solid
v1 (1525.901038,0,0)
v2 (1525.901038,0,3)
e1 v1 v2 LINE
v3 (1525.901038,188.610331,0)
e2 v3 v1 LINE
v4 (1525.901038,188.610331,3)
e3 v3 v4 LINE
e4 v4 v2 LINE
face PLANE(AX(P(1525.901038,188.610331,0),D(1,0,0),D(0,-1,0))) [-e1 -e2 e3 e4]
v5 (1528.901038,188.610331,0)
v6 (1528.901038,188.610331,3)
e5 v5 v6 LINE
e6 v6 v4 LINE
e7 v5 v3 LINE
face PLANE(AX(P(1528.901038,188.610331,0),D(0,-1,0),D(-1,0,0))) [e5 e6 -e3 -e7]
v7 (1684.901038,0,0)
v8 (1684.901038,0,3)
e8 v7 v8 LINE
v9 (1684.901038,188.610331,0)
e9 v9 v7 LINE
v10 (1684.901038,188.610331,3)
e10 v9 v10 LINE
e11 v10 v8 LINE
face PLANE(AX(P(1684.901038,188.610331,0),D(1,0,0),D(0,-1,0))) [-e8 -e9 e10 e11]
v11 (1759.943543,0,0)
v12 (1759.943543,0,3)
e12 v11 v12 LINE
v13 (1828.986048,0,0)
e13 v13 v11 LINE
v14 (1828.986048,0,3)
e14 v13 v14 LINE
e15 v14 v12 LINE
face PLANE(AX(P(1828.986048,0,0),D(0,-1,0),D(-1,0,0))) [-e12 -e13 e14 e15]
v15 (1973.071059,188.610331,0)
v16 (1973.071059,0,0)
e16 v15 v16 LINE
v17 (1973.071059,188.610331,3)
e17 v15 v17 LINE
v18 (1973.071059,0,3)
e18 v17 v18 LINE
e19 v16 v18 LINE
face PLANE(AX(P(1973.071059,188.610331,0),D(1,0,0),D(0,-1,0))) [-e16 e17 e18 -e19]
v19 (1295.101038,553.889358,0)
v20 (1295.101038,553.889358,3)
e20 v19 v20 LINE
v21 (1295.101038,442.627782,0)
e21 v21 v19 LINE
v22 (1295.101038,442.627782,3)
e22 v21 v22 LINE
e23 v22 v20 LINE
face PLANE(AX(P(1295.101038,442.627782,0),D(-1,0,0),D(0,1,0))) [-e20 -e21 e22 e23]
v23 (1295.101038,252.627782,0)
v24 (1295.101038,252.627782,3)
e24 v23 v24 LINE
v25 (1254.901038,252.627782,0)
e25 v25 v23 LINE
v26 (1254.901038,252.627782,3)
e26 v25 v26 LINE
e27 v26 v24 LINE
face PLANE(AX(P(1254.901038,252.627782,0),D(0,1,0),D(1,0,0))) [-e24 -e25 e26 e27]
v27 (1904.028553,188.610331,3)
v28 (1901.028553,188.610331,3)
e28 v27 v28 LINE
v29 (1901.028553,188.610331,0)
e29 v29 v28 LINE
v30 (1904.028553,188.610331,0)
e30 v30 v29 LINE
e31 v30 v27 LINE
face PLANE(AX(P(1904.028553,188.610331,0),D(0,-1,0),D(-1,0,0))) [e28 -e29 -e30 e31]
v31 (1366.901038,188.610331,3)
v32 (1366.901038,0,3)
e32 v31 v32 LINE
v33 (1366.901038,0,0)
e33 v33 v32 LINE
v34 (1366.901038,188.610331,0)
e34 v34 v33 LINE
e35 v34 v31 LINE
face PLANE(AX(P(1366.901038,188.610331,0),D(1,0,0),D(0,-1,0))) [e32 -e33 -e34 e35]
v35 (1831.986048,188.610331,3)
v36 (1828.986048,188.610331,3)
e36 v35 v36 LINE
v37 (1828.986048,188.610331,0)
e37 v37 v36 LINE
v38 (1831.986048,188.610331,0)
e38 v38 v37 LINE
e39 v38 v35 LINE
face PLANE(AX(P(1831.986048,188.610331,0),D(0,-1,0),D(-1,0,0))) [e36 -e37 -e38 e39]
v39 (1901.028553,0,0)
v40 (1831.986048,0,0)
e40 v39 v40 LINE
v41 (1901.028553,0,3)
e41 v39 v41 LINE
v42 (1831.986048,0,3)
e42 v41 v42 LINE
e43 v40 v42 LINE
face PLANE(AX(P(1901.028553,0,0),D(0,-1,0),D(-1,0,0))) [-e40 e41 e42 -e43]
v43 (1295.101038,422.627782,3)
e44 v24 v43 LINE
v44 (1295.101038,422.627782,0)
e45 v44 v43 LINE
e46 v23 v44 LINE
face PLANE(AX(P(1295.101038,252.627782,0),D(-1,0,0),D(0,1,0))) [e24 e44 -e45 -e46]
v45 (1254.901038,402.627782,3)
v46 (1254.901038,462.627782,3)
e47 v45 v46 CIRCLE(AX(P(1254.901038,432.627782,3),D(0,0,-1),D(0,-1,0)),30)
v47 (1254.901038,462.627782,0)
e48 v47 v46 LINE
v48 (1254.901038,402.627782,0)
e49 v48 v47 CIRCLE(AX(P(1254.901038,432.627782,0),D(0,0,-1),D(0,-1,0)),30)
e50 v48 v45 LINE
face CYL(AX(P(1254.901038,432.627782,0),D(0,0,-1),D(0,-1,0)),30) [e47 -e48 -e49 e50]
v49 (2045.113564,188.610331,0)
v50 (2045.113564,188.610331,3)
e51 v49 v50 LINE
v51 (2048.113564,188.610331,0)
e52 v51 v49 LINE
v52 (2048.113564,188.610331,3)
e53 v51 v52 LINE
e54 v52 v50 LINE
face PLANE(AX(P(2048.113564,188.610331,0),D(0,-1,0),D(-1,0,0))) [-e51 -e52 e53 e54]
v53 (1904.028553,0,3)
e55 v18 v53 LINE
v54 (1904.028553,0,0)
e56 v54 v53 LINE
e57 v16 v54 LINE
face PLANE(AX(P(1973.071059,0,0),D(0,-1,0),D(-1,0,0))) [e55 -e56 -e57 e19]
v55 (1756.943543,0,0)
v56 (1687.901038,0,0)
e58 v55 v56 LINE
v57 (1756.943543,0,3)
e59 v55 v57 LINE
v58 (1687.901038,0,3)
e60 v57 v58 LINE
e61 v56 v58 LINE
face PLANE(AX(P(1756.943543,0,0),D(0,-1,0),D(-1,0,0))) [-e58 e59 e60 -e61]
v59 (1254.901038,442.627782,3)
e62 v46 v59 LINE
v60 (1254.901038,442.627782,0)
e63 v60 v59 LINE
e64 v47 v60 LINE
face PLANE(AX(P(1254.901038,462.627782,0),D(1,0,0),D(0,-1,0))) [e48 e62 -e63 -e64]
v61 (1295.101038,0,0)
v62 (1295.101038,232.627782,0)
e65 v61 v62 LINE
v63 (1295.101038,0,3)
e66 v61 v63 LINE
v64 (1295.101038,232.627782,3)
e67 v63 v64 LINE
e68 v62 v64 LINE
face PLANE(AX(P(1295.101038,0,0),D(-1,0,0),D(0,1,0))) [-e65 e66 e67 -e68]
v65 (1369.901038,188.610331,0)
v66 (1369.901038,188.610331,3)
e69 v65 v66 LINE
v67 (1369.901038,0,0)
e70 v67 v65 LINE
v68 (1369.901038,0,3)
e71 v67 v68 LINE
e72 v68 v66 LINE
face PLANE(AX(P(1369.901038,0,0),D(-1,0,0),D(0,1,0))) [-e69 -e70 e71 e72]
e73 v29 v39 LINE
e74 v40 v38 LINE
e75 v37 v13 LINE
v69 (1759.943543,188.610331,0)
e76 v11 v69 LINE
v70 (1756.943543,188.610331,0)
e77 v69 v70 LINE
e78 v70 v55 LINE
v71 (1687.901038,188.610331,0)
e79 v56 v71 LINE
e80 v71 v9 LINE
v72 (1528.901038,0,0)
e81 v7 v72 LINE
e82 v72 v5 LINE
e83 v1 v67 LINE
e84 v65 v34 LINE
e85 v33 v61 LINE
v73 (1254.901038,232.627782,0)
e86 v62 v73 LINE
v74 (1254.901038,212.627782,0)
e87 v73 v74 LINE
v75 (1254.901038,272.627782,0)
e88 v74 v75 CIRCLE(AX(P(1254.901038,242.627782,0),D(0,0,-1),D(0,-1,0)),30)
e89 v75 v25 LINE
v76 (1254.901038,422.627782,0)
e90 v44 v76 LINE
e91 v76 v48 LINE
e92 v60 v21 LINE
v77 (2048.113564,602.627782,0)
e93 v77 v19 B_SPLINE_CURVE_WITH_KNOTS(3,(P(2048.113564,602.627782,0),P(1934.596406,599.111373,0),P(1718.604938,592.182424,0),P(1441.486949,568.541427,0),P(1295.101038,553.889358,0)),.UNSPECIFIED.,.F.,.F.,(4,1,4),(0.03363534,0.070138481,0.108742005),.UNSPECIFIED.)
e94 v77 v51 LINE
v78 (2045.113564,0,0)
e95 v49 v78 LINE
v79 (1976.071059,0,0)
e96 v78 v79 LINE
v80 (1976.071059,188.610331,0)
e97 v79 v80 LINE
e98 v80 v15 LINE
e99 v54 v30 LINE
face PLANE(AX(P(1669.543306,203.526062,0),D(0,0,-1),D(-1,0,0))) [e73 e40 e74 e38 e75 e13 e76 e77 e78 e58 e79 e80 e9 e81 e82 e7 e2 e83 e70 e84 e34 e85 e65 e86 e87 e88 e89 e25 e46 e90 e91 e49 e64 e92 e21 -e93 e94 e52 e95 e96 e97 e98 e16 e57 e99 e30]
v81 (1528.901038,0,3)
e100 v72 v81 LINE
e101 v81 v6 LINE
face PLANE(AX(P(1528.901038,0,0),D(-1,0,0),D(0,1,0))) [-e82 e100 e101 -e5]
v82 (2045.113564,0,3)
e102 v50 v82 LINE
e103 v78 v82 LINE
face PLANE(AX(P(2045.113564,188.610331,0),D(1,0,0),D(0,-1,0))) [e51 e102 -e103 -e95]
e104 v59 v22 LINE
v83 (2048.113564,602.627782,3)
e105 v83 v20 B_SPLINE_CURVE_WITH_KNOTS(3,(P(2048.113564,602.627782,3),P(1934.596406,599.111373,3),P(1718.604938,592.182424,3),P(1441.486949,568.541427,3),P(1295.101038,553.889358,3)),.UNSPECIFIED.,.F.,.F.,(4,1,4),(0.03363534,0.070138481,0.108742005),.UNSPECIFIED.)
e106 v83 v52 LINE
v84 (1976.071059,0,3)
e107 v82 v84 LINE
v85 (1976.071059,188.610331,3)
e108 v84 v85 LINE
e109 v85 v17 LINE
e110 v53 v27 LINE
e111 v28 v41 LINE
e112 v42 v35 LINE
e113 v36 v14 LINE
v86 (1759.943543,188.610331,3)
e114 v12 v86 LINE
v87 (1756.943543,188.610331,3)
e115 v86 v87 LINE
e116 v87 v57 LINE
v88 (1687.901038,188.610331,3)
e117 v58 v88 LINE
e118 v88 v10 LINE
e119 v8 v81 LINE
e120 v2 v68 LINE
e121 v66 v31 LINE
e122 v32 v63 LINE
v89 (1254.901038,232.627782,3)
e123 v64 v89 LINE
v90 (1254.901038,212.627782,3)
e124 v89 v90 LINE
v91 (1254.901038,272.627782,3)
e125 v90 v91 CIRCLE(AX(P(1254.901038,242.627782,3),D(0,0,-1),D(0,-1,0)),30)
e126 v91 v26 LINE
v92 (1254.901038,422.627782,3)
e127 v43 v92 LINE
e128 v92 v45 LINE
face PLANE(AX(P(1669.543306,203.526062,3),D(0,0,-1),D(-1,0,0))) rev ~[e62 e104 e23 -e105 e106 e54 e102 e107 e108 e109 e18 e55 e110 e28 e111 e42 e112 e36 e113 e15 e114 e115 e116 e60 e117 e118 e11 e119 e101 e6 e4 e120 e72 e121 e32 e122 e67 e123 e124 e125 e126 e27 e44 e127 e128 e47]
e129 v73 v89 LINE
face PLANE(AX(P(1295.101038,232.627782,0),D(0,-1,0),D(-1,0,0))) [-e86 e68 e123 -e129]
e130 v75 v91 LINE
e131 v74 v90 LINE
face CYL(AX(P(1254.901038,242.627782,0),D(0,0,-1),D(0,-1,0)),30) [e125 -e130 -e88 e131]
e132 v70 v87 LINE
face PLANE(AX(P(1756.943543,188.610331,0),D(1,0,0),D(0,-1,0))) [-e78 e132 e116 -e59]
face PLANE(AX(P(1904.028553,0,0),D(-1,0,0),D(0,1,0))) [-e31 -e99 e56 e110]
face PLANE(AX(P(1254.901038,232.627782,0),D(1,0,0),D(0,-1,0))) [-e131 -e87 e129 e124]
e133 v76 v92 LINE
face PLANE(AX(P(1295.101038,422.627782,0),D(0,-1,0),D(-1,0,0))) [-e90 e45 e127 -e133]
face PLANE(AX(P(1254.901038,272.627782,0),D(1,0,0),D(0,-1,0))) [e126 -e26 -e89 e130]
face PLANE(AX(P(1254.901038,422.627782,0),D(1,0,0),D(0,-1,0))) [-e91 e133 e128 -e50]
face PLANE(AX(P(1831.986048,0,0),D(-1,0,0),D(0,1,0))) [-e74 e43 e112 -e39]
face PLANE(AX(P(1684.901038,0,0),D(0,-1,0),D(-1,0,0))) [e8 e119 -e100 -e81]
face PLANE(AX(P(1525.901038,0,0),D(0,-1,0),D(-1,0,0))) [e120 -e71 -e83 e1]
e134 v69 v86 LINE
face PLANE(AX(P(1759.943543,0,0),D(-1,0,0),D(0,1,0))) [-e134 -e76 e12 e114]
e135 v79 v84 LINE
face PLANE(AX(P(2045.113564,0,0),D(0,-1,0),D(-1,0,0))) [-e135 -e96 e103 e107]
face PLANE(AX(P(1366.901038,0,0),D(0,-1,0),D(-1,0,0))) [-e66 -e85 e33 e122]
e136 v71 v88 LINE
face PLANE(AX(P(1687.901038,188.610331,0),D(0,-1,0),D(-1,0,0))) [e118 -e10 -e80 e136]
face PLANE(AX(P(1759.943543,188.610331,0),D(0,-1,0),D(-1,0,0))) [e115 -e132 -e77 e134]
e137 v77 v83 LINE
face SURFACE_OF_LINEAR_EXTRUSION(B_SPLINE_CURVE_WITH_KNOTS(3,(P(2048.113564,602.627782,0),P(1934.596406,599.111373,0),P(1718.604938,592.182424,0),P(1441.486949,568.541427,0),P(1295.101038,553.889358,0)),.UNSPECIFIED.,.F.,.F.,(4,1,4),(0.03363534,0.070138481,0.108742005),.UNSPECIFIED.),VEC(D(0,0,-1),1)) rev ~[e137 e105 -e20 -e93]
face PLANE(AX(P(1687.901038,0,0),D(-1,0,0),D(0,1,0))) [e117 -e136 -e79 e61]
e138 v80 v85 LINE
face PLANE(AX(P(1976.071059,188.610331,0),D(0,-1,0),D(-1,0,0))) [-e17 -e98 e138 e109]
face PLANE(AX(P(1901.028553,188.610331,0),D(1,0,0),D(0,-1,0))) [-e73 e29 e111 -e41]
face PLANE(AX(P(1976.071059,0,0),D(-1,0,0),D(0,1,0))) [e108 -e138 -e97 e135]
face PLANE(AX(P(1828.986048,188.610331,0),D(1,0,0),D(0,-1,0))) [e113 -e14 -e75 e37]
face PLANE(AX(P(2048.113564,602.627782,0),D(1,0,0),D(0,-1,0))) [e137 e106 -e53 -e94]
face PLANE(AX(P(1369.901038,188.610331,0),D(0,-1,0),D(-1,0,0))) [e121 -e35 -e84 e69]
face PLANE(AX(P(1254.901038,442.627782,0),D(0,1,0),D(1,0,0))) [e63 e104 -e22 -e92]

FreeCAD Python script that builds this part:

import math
import FreeCAD as App
import Part
import Sketcher

V = App.Vector

doc = App.newDocument("Part")
body = doc.addObject("PartDesign::Body", "Body")

# Sketch on XY plane
sketch1 = body.newObject("Sketcher::SketchObject", "Sketch")
sketch1.AttachmentSupport = (doc.getObject("XY_Plane"), [""])
sketch1.MapMode = "FlatFace"
sketch1.addGeometry([
    Part.LineSegment(V(1295.101038, 232.627782, 0), V(1295.101038, 0, 0)),  # 0
    Part.LineSegment(V(1295.101038, 0, 0), V(1366.901038, 0, 0)),  # 1
    Part.LineSegment(V(1366.901038, 0, 0), V(1366.901038, 188.610331, 0)),  # 2
    Part.LineSegment(V(1366.901038, 188.610331, 0), V(1369.901038, 188.610331, 0)),  # 3
    Part.LineSegment(V(1369.901038, 188.610331, 0), V(1369.901038, 0, 0)),  # 4
    Part.LineSegment(V(1369.901038, 0, 0), V(1525.901038, 0, 0)),  # 5
    Part.LineSegment(V(1525.901038, 0, 0), V(1525.901038, 188.610331, 0)),  # 6
    Part.LineSegment(V(1525.901038, 188.610331, 0), V(1528.901038, 188.610331, 0)),  # 7
    Part.LineSegment(V(1528.901038, 188.610331, 0), V(1528.901038, 0, 0)),  # 8
    Part.LineSegment(V(1528.901038, 0, 0), V(1684.901038, 0, 0)),  # 9
    Part.LineSegment(V(1684.901038, 0, 0), V(1684.901038, 188.610331, 0)),  # 10
    Part.LineSegment(V(1684.901038, 188.610331, 0), V(1687.901038, 188.610331, 0)),  # 11
    Part.LineSegment(V(1687.901038, 188.610331, 0), V(1687.901038, 0, 0)),  # 12
    Part.LineSegment(V(1687.901038, 0, 0), V(1756.943543, 0, 0)),  # 13
    Part.LineSegment(V(1756.943543, 0, 0), V(1756.943543, 188.610331, 0)),  # 14
    Part.LineSegment(V(1756.943543, 188.610331, 0), V(1759.943543, 188.610331, 0)),  # 15
    Part.LineSegment(V(1759.943543, 188.610331, 0), V(1759.943543, 0, 0)),  # 16
    Part.LineSegment(V(1759.943543, 0, 0), V(1828.986048, 0, 0)),  # 17
    Part.LineSegment(V(1828.986048, 0, 0), V(1828.986048, 188.610331, 0)),  # 18
    Part.LineSegment(V(1828.986048, 188.610331, 0), V(1831.986048, 188.610331, 0)),  # 19
    Part.LineSegment(V(1831.986048, 188.610331, 0), V(1831.986048, 0, 0)),  # 20
    Part.LineSegment(V(1831.986048, 0, 0), V(1901.028553, 0, 0)),  # 21
    Part.LineSegment(V(1901.028553, 0, 0), V(1901.028553, 188.610331, 0)),  # 22
    Part.LineSegment(V(1901.028553, 188.610331, 0), V(1904.028553, 188.610331, 0)),  # 23
    Part.LineSegment(V(1904.028553, 188.610331, 0), V(1904.028553, 0, 0)),  # 24
    Part.LineSegment(V(1904.028553, 0, 0), V(1973.071059, 0, 0)),  # 25
    Part.LineSegment(V(1973.071059, 0, 0), V(1973.071059, 188.610331, 0)),  # 26
    Part.LineSegment(V(1973.071059, 188.610331, 0), V(1976.071059, 188.610331, 0)),  # 27
    Part.LineSegment(V(1976.071059, 188.610331, 0), V(1976.071059, 0, 0)),  # 28
    Part.LineSegment(V(1976.071059, 0, 0), V(2045.113564, 0, 0)),  # 29
    Part.LineSegment(V(2045.113564, 0, 0), V(2045.113564, 188.610331, 0)),  # 30
    Part.LineSegment(V(2045.113564, 188.610331, 0), V(2048.113564, 188.610331, 0)),  # 31
    Part.LineSegment(V(2048.113564, 188.610331, 0), V(2048.113564, 602.627782, 0)),  # 32
    Part.BSplineCurve([V(2048.113564, 602.627782, 0), V(1934.596406, 599.111373, 0), V(1718.604938, 592.182424, 0), V(1441.486949, 568.541427, 0), V(1295.101038, 553.889358, 0)], [4, 1, 4], [0.03363534, 0.070138481, 0.108742005], False, 3, [1, 1, 1, 1, 1], False),  # 33
    Part.LineSegment(V(1295.101038, 553.889358, 0), V(1295.101038, 442.627782, 0)),  # 34
    Part.LineSegment(V(1295.101038, 442.627782, 0), V(1254.901038, 442.627782, 0)),  # 35
    Part.LineSegment(V(1254.901038, 442.627782, 0), V(1254.901038, 462.627782, 0)),  # 36
    Part.ArcOfCircle(Part.Circle(V(1254.901038, 432.627782, 0), V(0, 0, 1), 30), math.radians(90), math.radians(270)),  # 37
    Part.LineSegment(V(1254.901038, 402.627782, 0), V(1254.901038, 422.627782, 0)),  # 38
    Part.LineSegment(V(1254.901038, 422.627782, 0), V(1295.101038, 422.627782, 0)),  # 39
    Part.LineSegment(V(1295.101038, 422.627782, 0), V(1295.101038, 252.627782, 0)),  # 40
    Part.LineSegment(V(1295.101038, 252.627782, 0), V(1254.901038, 252.627782, 0)),  # 41
    Part.LineSegment(V(1254.901038, 252.627782, 0), V(1254.901038, 272.627782, 0)),  # 42
    Part.ArcOfCircle(Part.Circle(V(1254.901038, 242.627782, 0), V(0, 0, 1), 30), math.radians(90), math.radians(270)),  # 43
    Part.LineSegment(V(1254.901038, 212.627782, 0), V(1254.901038, 232.627782, 0)),  # 44
    Part.LineSegment(V(1254.901038, 232.627782, 0), V(1295.101038, 232.627782, 0)),  # 45
], False)
sketch1.addConstraint([
    Sketcher.Constraint("Block", 33),
    Sketcher.Constraint("Coincident", 0, 2, 1, 1),
    Sketcher.Constraint("Coincident", 1, 2, 2, 1),
    Sketcher.Constraint("Coincident", 2, 2, 3, 1),
    Sketcher.Constraint("Coincident", 3, 2, 4, 1),
    Sketcher.Constraint("Coincident", 4, 2, 5, 1),
    Sketcher.Constraint("Coincident", 5, 2, 6, 1),
    Sketcher.Constraint("Coincident", 6, 2, 7, 1),
    Sketcher.Constraint("Coincident", 7, 2, 8, 1),
    Sketcher.Constraint("Coincident", 8, 2, 9, 1),
    Sketcher.Constraint("Coincident", 9, 2, 10, 1),
    Sketcher.Constraint("Coincident", 10, 2, 11, 1),
    Sketcher.Constraint("Coincident", 11, 2, 12, 1),
    Sketcher.Constraint("Coincident", 12, 2, 13, 1),
    Sketcher.Constraint("Coincident", 13, 2, 14, 1),
    Sketcher.Constraint("Coincident", 14, 2, 15, 1),
    Sketcher.Constraint("Coincident", 15, 2, 16, 1),
    Sketcher.Constraint("Coincident", 16, 2, 17, 1),
    Sketcher.Constraint("Coincident", 17, 2, 18, 1),
    Sketcher.Constraint("Coincident", 18, 2, 19, 1),
    Sketcher.Constraint("Coincident", 19, 2, 20, 1),
    Sketcher.Constraint("Coincident", 20, 2, 21, 1),
    Sketcher.Constraint("Coincident", 21, 2, 22, 1),
    Sketcher.Constraint("Coincident", 22, 2, 23, 1),
    Sketcher.Constraint("Coincident", 23, 2, 24, 1),
    Sketcher.Constraint("Coincident", 24, 2, 25, 1),
    Sketcher.Constraint("Coincident", 25, 2, 26, 1),
    Sketcher.Constraint("Coincident", 26, 2, 27, 1),
    Sketcher.Constraint("Coincident", 27, 2, 28, 1),
    Sketcher.Constraint("Coincident", 28, 2, 29, 1),
    Sketcher.Constraint("Coincident", 29, 2, 30, 1),
    Sketcher.Constraint("Coincident", 30, 2, 31, 1),
    Sketcher.Constraint("Coincident", 31, 2, 32, 1),
    Sketcher.Constraint("Coincident", 32, 2, 33, 1),
    Sketcher.Constraint("Coincident", 33, 2, 34, 1),
    Sketcher.Constraint("Coincident", 34, 2, 35, 1),
    Sketcher.Constraint("Coincident", 35, 2, 36, 1),
    Sketcher.Constraint("Coincident", 36, 2, 37, 1),
    Sketcher.Constraint("Coincident", 37, 2, 38, 1),
    Sketcher.Constraint("Coincident", 38, 2, 39, 1),
    Sketcher.Constraint("Coincident", 39, 2, 40, 1),
    Sketcher.Constraint("Coincident", 40, 2, 41, 1),
    Sketcher.Constraint("Coincident", 41, 2, 42, 1),
    Sketcher.Constraint("Coincident", 42, 2, 43, 1),
    Sketcher.Constraint("Coincident", 43, 2, 44, 1),
    Sketcher.Constraint("Coincident", 44, 2, 45, 1),
    Sketcher.Constraint("Coincident", 45, 2, 0, 1),
    Sketcher.Constraint("Vertical", 0),
    Sketcher.Constraint("Horizontal", 1),
    Sketcher.Constraint("Vertical", 2),
    Sketcher.Constraint("Horizontal", 3),
    Sketcher.Constraint("Vertical", 4),
    Sketcher.Constraint("Horizontal", 5),
    Sketcher.Constraint("Vertical", 6),
    Sketcher.Constraint("Horizontal", 7),
    Sketcher.Constraint("Vertical", 8),
    Sketcher.Constraint("Horizontal", 9),
    Sketcher.Constraint("Vertical", 10),
    Sketcher.Constraint("Horizontal", 11),
    Sketcher.Constraint("Vertical", 12),
    Sketcher.Constraint("Horizontal", 13),
    Sketcher.Constraint("Vertical", 14),
    Sketcher.Constraint("Horizontal", 15),
    Sketcher.Constraint("Vertical", 16),
    Sketcher.Constraint("Horizontal", 17),
    Sketcher.Constraint("Vertical", 18),
    Sketcher.Constraint("Horizontal", 19),
    Sketcher.Constraint("Vertical", 20),
    Sketcher.Constraint("Horizontal", 21),
    Sketcher.Constraint("Vertical", 22),
    Sketcher.Constraint("Horizontal", 23),
    Sketcher.Constraint("Vertical", 24),
    Sketcher.Constraint("Horizontal", 25),
    Sketcher.Constraint("Vertical", 26),
    Sketcher.Constraint("Horizontal", 27),
    Sketcher.Constraint("Vertical", 28),
    Sketcher.Constraint("Horizontal", 29),
    Sketcher.Constraint("Vertical", 30),
    Sketcher.Constraint("Horizontal", 31),
    Sketcher.Constraint("Vertical", 32),
    Sketcher.Constraint("Vertical", 34),
    Sketcher.Constraint("Horizontal", 35),
    Sketcher.Constraint("Vertical", 36),
    Sketcher.Constraint("Vertical", 38),
    Sketcher.Constraint("Horizontal", 39),
    Sketcher.Constraint("Vertical", 40),
    Sketcher.Constraint("Horizontal", 41),
    Sketcher.Constraint("Vertical", 42),
    Sketcher.Constraint("Vertical", 44),
    Sketcher.Constraint("Horizontal", 45),
    Sketcher.Constraint("Equal", 37, 43),
    Sketcher.Constraint("PointOnObject", 0, 2, -1),
    Sketcher.Constraint("PointOnObject", 4, 2, -1),
    Sketcher.Constraint("PointOnObject", 8, 2, -1),
    Sketcher.Constraint("PointOnObject", 12, 2, -1),
    Sketcher.Constraint("PointOnObject", 16, 2, -1),
    Sketcher.Constraint("PointOnObject", 20, 2, -1),
    Sketcher.Constraint("PointOnObject", 24, 2, -1),
    Sketcher.Constraint("PointOnObject", 28, 2, -1),
    Sketcher.Constraint("Horizontal", 3, 2, 6, 2),
    Sketcher.Constraint("Horizontal", 7, 2, 10, 2),
    Sketcher.Constraint("Horizontal", 11, 2, 14, 2),
    Sketcher.Constraint("Horizontal", 15, 2, 18, 2),
    Sketcher.Constraint("Horizontal", 19, 2, 22, 2),
    Sketcher.Constraint("Horizontal", 23, 2, 26, 2),
    Sketcher.Constraint("Horizontal", 27, 2, 30, 2),
    Sketcher.Constraint("Vertical", 37, 3, 43, 3),
    Sketcher.Constraint("Vertical", 0, 2, 34, 2),
    Sketcher.Constraint("Vertical", 43, 3, 35, 2),
    Sketcher.Constraint("Vertical", 36, 2, 37, 2),
    Sketcher.Constraint("Vertical", 34, 2, 39, 2),
    Sketcher.Constraint("Vertical", 38, 2, 41, 2),
    Sketcher.Constraint("Vertical", 42, 2, 43, 2),
    Sketcher.Constraint("Equal", 3, 7),
    Sketcher.Constraint("Equal", 5, 9),
    Sketcher.Constraint("Equal", 7, 11),
    Sketcher.Constraint("Equal", 11, 15),
    Sketcher.Constraint("Equal", 13, 17),
    Sketcher.Constraint("Equal", 15, 19),
    Sketcher.Constraint("Equal", 17, 21),
    Sketcher.Constraint("Equal", 19, 23),
    Sketcher.Constraint("Equal", 21, 25),
    Sketcher.Constraint("Equal", 23, 27),
    Sketcher.Constraint("Equal", 25, 29),
    Sketcher.Constraint("Equal", 27, 31),
    Sketcher.Constraint("Equal", 36, 38),
    Sketcher.Constraint("Equal", 38, 42),
    Sketcher.Constraint("Equal", 42, 44),
    Sketcher.Constraint("Radius", 37, 30.0),
    Sketcher.Constraint("DistanceX", 3, 1, 3, 2, 3.0),
    Sketcher.Constraint("DistanceX", 5, 1, 5, 2, 156.0),
    Sketcher.Constraint("DistanceY", 36, 1, 36, 2, 20.0),
    Sketcher.Constraint("DistanceY", 40, 2, 40, 1, 170.0),
    Sketcher.Constraint("DistanceX", 1, 1, 1, 2, 71.8),
    Sketcher.Constraint("DistanceX", 35, 2, 35, 1, 40.2),
    Sketcher.Constraint("DistanceY", 0, 2, 0, 1, 232.627782),
    Sketcher.Constraint("DistanceY", 2, 1, 2, 2, 188.610331),
])
pad1 = body.newObject("PartDesign::Pad", "Pad")
pad1.Profile = sketch1
pad1.Length = 3

doc.recompute()
